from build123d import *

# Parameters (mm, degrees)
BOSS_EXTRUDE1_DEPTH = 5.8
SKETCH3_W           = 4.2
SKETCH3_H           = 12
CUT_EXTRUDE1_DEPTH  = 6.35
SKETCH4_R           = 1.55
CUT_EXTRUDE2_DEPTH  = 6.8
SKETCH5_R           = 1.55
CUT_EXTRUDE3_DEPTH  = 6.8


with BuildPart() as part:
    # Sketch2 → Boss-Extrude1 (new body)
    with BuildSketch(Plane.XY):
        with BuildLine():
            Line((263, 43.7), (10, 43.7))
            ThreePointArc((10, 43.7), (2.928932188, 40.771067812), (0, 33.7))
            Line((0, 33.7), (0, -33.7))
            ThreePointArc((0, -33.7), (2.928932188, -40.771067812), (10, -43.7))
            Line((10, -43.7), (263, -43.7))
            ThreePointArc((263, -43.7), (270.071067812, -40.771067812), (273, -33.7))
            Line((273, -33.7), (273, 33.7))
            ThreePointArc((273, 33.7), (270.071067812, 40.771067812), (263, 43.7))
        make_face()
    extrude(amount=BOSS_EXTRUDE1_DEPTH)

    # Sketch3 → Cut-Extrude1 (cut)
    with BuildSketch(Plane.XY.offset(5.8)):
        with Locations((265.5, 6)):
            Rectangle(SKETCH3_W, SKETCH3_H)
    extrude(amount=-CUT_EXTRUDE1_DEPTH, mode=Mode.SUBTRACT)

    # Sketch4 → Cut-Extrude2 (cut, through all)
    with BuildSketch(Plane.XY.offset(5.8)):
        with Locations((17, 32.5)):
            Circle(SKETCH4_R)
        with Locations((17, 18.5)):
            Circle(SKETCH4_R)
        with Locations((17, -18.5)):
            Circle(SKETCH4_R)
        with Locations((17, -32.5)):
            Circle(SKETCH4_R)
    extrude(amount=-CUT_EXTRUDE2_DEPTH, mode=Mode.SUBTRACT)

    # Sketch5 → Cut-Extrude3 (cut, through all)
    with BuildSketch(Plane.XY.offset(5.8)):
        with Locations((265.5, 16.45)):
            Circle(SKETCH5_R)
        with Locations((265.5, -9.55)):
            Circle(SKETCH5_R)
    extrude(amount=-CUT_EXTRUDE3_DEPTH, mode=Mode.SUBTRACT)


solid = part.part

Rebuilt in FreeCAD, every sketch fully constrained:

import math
import FreeCAD as App
import Part
import Sketcher
from FreeCAD import Vector

doc = App.newDocument("Part")
params = doc.addObject("Spreadsheet::Sheet", "Params")
for row, (alias, value) in enumerate([
    ("sketch1_radius", "10 mm"),
    ("sketch1_width", "253 mm"),
    ("sketch1_height", "67.4 mm"),
    ("pad1_length", "5.8 mm"),
    ("sketch2_height", "12 mm"),
    ("sketch2_width", "4.2 mm"),
    ("pocket1_length", "6.35 mm"),
    ("sketch3_diameter", "3.1 mm"),
    ("sketch4_diameter", "3.1 mm"),
], start=1):
    params.set(f"A{row}", alias)
    params.set(f"B{row}", "=" + value)
    params.setAlias(f"B{row}", alias)

body = doc.addObject("PartDesign::Body", "Body")

# Sketch on XY plane
sketch1 = body.newObject("Sketcher::SketchObject", "Sketch")
sketch1.AttachmentSupport = (doc.getObject("XY_Plane"), [""])
sketch1.MapMode = "FlatFace"
sketch1.addGeometry(Part.LineSegment(Vector(263, 43.7, 0), Vector(10, 43.7, 0)), False)
sketch1.addGeometry(Part.ArcOfCircle(Part.Circle(Vector(10, 33.7, 0), Vector(0, 0, 1), 10), math.radians(90), math.radians(180)), False)
sketch1.addGeometry(Part.LineSegment(Vector(0, 33.7, 0), Vector(0, -33.7, 0)), False)
sketch1.addGeometry(Part.ArcOfCircle(Part.Circle(Vector(10, -33.7, 0), Vector(0, 0, 1), 10), math.radians(180), math.radians(270)), False)
sketch1.addGeometry(Part.LineSegment(Vector(10, -43.7, 0), Vector(263, -43.7, 0)), False)
sketch1.addGeometry(Part.ArcOfCircle(Part.Circle(Vector(263, -33.7, 0), Vector(0, 0, 1), 10), math.radians(-90), math.radians(0)), False)
sketch1.addGeometry(Part.LineSegment(Vector(273, -33.7, 0), Vector(273, 33.7, 0)), False)
sketch1.addGeometry(Part.ArcOfCircle(Part.Circle(Vector(263, 33.7, 0), Vector(0, 0, 1), 10), math.radians(0), math.radians(90)), False)
sketch1.addConstraint(Sketcher.Constraint("Tangent", 0, 2, 1, 1))
sketch1.addConstraint(Sketcher.Constraint("Tangent", 1, 2, 2, 1))
sketch1.addConstraint(Sketcher.Constraint("Tangent", 2, 2, 3, 1))
sketch1.addConstraint(Sketcher.Constraint("Tangent", 3, 2, 4, 1))
sketch1.addConstraint(Sketcher.Constraint("Tangent", 4, 2, 5, 1))
sketch1.addConstraint(Sketcher.Constraint("Tangent", 5, 2, 6, 1))
sketch1.addConstraint(Sketcher.Constraint("Tangent", 6, 2, 7, 1))
sketch1.addConstraint(Sketcher.Constraint("Tangent", 7, 2, 0, 1))
sketch1.addConstraint(Sketcher.Constraint("Horizontal", 0))
sketch1.addConstraint(Sketcher.Constraint("Vertical", 2))
sketch1.addConstraint(Sketcher.Constraint("Horizontal", 4))
sketch1.addConstraint(Sketcher.Constraint("Vertical", 6))
sketch1.addConstraint(Sketcher.Constraint("Equal", 1, 3))
sketch1.addConstraint(Sketcher.Constraint("Equal", 3, 5))
sketch1.addConstraint(Sketcher.Constraint("Equal", 5, 7))
sketch1.addConstraint(Sketcher.Constraint("Symmetric", 1, 2, 2, 2, -1, 1))
sketch1.addConstraint(Sketcher.Constraint("Radius", 1, 10.0))
sketch1.addConstraint(Sketcher.Constraint("DistanceX", 0, 2, 0, 1, 253.0))
sketch1.addConstraint(Sketcher.Constraint("DistanceY", 2, 2, 2, 1, 67.4))
sketch1.setExpression("Constraints[16]", "Params.sketch1_radius")
sketch1.setExpression("Constraints[17]", "Params.sketch1_width")
sketch1.setExpression("Constraints[18]", "Params.sketch1_height")
pad1 = body.newObject("PartDesign::Pad", "Pad")
pad1.Profile = sketch1
pad1.setExpression("Length", "Params.pad1_length")

# Sketch on XY plane
sketch2 = body.newObject("Sketcher::SketchObject", "Sketch001")
sketch2.AttachmentSupport = (doc.getObject("XY_Plane"), [""])
sketch2.MapMode = "FlatFace"
sketch2.AttachmentOffset = App.Placement(Vector(0, 0, 5.8), App.Rotation())
sketch2.addGeometry(Part.LineSegment(Vector(263.4, 12, 0), Vector(263.4, 0, 0)), False)
sketch2.addGeometry(Part.LineSegment(Vector(263.4, 0, 0), Vector(267.6, 0, 0)), False)
sketch2.addGeometry(Part.LineSegment(Vector(267.6, 0, 0), Vector(267.6, 12, 0)), False)
sketch2.addGeometry(Part.LineSegment(Vector(267.6, 12, 0), Vector(263.4, 12, 0)), False)
sketch2.addConstraint(Sketcher.Constraint("Coincident", 0, 2, 1, 1))
sketch2.addConstraint(Sketcher.Constraint("Coincident", 1, 2, 2, 1))
sketch2.addConstraint(Sketcher.Constraint("Coincident", 2, 2, 3, 1))
sketch2.addConstraint(Sketcher.Constraint("Coincident", 3, 2, 0, 1))
sketch2.addConstraint(Sketcher.Constraint("Vertical", 0))
sketch2.addConstraint(Sketcher.Constraint("Horizontal", 1))
sketch2.addConstraint(Sketcher.Constraint("Vertical", 2))
sketch2.addConstraint(Sketcher.Constraint("Horizontal", 3))
sketch2.addConstraint(Sketcher.Constraint("PointOnObject", 0, 2, -1))
sketch2.addConstraint(Sketcher.Constraint("DistanceY", 0, 2, 0, 1, 12.0))
sketch2.addConstraint(Sketcher.Constraint("DistanceX", 1, 1, 1, 2, 4.2))
sketch2.addConstraint(Sketcher.Constraint("DistanceX", -1, 1, 0, 2, 263.4))
sketch2.setExpression("Constraints[9]", "Params.sketch2_height")
sketch2.setExpression("Constraints[10]", "Params.sketch2_width")
pocket1 = body.newObject("PartDesign::Pocket", "Pocket")
pocket1.Profile = sketch2
pocket1.setExpression("Length", "Params.pocket1_length")

# Sketch on XY plane
sketch3 = body.newObject("Sketcher::SketchObject", "Sketch002")
sketch3.AttachmentSupport = (doc.getObject("XY_Plane"), [""])
sketch3.MapMode = "FlatFace"
sketch3.AttachmentOffset = App.Placement(Vector(0, 0, 5.8), App.Rotation())
sketch3.addGeometry(Part.Circle(Vector(17, 32.5, 0), Vector(0, 0, 1), 1.55), False)
sketch3.addGeometry(Part.Circle(Vector(17, 18.5, 0), Vector(0, 0, 1), 1.55), False)
sketch3.addGeometry(Part.Circle(Vector(17, -18.5, 0), Vector(0, 0, 1), 1.55), False)
sketch3.addGeometry(Part.Circle(Vector(17, -32.5, 0), Vector(0, 0, 1), 1.55), False)
sketch3.addConstraint(Sketcher.Constraint("Equal", 0, 1))
sketch3.addConstraint(Sketcher.Constraint("Equal", 1, 2))
sketch3.addConstraint(Sketcher.Constraint("Equal", 2, 3))
sketch3.addConstraint(Sketcher.Constraint("Symmetric", 1, 3, 2, 3, -1))
sketch3.addConstraint(Sketcher.Constraint("Symmetric", 0, 3, 3, 3, -1))
sketch3.addConstraint(Sketcher.Constraint("Vertical", 0, 3, 1, 3))
sketch3.addConstraint(Sketcher.Constraint("Diameter", 0, 3.1))
sketch3.addConstraint(Sketcher.Constraint("DistanceX", -1, 1, 0, 3, 17.0))
sketch3.addConstraint(Sketcher.Constraint("DistanceY", 1, 3, 0, 3, 14.0))
sketch3.addConstraint(Sketcher.Constraint("DistanceY", 2, 3, 1, 3, 37.0))
sketch3.setExpression("Constraints[6]", "Params.sketch3_diameter")
pocket2 = body.newObject("PartDesign::Pocket", "Pocket001")
pocket2.Profile = sketch3
pocket2.Type = "ThroughAll"

# Sketch on XY plane
sketch4 = body.newObject("Sketcher::SketchObject", "Sketch003")
sketch4.AttachmentSupport = (doc.getObject("XY_Plane"), [""])
sketch4.MapMode = "FlatFace"
sketch4.AttachmentOffset = App.Placement(Vector(0, 0, 5.8), App.Rotation())
sketch4.addGeometry(Part.Circle(Vector(265.5, 16.45, 0), Vector(0, 0, 1), 1.55), False)
sketch4.addGeometry(Part.Circle(Vector(265.5, -9.55, 0), Vector(0, 0, 1), 1.55), False)
sketch4.addConstraint(Sketcher.Constraint("Equal", 0, 1))
sketch4.addConstraint(Sketcher.Constraint("Vertical", 0, 3, 1, 3))
sketch4.addConstraint(Sketcher.Constraint("Diameter", 0, 3.1))
sketch4.addConstraint(Sketcher.Constraint("DistanceY", 1, 3, 0, 3, 26.0))
sketch4.addConstraint(Sketcher.Constraint("DistanceX", -1, 1, 0, 3, 265.5))
sketch4.addConstraint(Sketcher.Constraint("DistanceY", -1, 1, 0, 3, 16.45))
sketch4.setExpression("Constraints[2]", "Params.sketch4_diameter")
pocket3 = body.newObject("PartDesign::Pocket", "Pocket002")
pocket3.Profile = sketch4
pocket3.Type = "ThroughAll"

doc.recompute()
